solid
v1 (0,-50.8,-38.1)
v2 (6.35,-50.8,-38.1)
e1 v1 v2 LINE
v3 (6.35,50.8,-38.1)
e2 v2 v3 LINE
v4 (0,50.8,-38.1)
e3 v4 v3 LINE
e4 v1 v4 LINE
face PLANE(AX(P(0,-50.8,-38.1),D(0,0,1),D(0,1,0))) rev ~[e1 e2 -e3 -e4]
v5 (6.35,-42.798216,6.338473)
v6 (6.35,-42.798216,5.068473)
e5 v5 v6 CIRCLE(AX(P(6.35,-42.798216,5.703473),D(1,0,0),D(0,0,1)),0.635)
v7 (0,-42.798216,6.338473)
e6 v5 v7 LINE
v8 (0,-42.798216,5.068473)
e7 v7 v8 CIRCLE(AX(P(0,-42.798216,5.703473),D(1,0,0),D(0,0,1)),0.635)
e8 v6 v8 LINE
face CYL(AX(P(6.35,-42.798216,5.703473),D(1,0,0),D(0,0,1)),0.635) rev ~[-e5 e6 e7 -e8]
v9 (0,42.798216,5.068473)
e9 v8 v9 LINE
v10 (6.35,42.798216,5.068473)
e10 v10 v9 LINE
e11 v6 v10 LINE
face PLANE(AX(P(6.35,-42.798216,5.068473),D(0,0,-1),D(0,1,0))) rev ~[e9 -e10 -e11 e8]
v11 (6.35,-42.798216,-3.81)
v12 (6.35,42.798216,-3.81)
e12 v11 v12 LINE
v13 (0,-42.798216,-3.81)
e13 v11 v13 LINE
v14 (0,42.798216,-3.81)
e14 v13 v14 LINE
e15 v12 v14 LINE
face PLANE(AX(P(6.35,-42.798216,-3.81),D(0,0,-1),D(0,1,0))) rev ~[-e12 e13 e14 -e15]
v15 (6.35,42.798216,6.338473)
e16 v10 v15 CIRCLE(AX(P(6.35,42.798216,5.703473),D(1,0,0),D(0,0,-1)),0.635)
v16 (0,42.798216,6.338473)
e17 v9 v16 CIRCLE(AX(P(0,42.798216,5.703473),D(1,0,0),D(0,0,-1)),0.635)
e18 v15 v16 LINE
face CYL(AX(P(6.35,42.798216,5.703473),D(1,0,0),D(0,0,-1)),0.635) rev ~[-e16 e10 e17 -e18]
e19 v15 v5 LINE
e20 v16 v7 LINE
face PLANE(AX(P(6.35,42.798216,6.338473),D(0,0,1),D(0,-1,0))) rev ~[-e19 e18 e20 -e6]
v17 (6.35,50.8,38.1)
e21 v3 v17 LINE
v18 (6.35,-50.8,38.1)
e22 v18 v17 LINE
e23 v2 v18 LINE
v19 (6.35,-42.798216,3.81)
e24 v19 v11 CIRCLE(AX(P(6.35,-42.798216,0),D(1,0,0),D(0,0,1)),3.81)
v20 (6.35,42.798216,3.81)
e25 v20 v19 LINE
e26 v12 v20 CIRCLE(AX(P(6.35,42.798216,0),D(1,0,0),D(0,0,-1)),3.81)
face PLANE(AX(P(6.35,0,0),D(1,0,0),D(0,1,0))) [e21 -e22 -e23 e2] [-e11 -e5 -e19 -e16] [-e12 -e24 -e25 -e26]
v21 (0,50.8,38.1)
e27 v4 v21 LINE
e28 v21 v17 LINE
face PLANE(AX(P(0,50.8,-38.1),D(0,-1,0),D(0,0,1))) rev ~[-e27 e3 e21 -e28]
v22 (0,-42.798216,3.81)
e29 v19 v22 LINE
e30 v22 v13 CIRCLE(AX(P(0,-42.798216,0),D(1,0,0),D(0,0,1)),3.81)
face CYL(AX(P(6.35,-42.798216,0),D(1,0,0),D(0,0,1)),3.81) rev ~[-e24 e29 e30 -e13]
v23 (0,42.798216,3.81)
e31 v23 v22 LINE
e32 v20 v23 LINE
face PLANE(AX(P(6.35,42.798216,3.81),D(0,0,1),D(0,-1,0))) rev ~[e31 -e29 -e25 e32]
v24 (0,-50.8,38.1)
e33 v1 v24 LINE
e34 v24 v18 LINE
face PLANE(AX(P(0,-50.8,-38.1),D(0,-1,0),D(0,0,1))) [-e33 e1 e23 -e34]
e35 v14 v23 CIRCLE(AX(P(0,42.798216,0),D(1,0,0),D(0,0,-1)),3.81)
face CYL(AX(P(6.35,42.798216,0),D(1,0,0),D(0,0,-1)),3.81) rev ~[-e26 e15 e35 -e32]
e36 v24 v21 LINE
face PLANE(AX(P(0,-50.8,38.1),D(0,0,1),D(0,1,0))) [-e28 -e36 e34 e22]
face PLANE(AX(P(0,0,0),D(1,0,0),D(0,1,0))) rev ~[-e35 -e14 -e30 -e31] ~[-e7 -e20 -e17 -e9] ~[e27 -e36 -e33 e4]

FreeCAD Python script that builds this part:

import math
import FreeCAD as App
import Part
import Sketcher
Q = App.Units.Quantity


def add_polygon(sketch, points):
    """Adds a closed chain of lines whose ends are joined by coincident constraints."""
    first, n = sketch.GeometryCount, len(points)
    for a, b in zip(points, points[1:] + points[:1]):
        sketch.addGeometry(Part.LineSegment(App.Vector(*a, 0), App.Vector(*b, 0)), False)
    for i in range(n):
        sketch.addConstraint(Sketcher.Constraint("Coincident", first + i, 2, first + (i + 1) % n, 1))

doc = App.newDocument("Part")
body = doc.addObject("PartDesign::Body", "Body")

sketch1 = doc.addObject("Sketcher::SketchObject", "Sketch")
body.addObject(sketch1)
sketch1.AttachmentSupport = (doc.YZ_Plane, [""])
sketch1.MapMode = "FlatFace"
add_polygon(sketch1, [(-50.8, 38.1), (-50.8, -38.1), (50.8, -38.1), (50.8, 38.1)])
sketch1.addConstraint(Sketcher.Constraint("Vertical", 0))
sketch1.addConstraint(Sketcher.Constraint("Horizontal", 1))
sketch1.addConstraint(Sketcher.Constraint("Vertical", 2))
sketch1.addConstraint(Sketcher.Constraint("Horizontal", 3))
sketch1.addConstraint(Sketcher.Constraint("Symmetric", 0, 2, 2, 2, -1, 1))
sketch1.addConstraint(Sketcher.Constraint("DistanceX", 1, 1, 1, 2, Q("4 in")))
sketch1.addConstraint(Sketcher.Constraint("DistanceY", 0, 2, 0, 1, Q("3 in")))
pad1 = doc.addObject("PartDesign::Pad", "Pad")
body.addObject(pad1)
pad1.Profile = sketch1
pad1.Length = Q("0.25 in")

sketch2 = doc.addObject("Sketcher::SketchObject", "Sketch001")
body.addObject(sketch2)
sketch2.AttachmentSupport = (doc.YZ_Plane, [""])
sketch2.MapMode = "FlatFace"
sketch2.AttachmentOffset = App.Placement(App.Vector(0, 0, 0.25 * 25.4), App.Rotation())
sketch2.addGeometry(Part.LineSegment(App.Vector(42.798216, 3.81, 0), App.Vector(-42.798216, 3.81, 0)), False)
sketch2.addGeometry(Part.ArcOfCircle(Part.Circle(App.Vector(-42.798216, 0, 0), App.Vector(0, 0, 1), 3.81), math.radians(90), math.radians(270)), False)
sketch2.addGeometry(Part.LineSegment(App.Vector(-42.798216, -3.81, 0), App.Vector(42.798216, -3.81, 0)), False)
sketch2.addGeometry(Part.ArcOfCircle(Part.Circle(App.Vector(42.798216, 0, 0), App.Vector(0, 0, 1), 3.81), math.radians(-90), math.radians(90)), False)
sketch2.addConstraint(Sketcher.Constraint("Tangent", 0, 2, 1, 1))
sketch2.addConstraint(Sketcher.Constraint("Tangent", 1, 2, 2, 1))
sketch2.addConstraint(Sketcher.Constraint("Tangent", 2, 2, 3, 1))
sketch2.addConstraint(Sketcher.Constraint("Tangent", 3, 2, 0, 1))
sketch2.addConstraint(Sketcher.Constraint("Horizontal", 0))
sketch2.addConstraint(Sketcher.Constraint("Horizontal", 2))
sketch2.addConstraint(Sketcher.Constraint("Symmetric", 1, 3, 3, 3, -1, 1))
sketch2.addConstraint(Sketcher.Constraint("Radius", 1, Q("0.15 in")))
sketch2.addConstraint(Sketcher.Constraint("DistanceX", 0, 2, 0, 1, Q("85.596432 mm")))
pocket1 = doc.addObject("PartDesign::Pocket", "Pocket")
body.addObject(pocket1)
pocket1.Profile = sketch2
pocket1.Length = Q("1 in")

sketch3 = doc.addObject("Sketcher::SketchObject", "Sketch002")
body.addObject(sketch3)
sketch3.AttachmentSupport = (doc.YZ_Plane, [""])
sketch3.MapMode = "FlatFace"
sketch3.AttachmentOffset = App.Placement(App.Vector(0, 0, 0.25 * 25.4), App.Rotation())
sketch3.addGeometry(Part.LineSegment(App.Vector(-42.798216, 5.068473, 0), App.Vector(42.798216, 5.068473, 0)), False)
sketch3.addGeometry(Part.ArcOfCircle(Part.Circle(App.Vector(42.798216, 5.703473, 0), App.Vector(0, 0, 1), 0.635), math.radians(-90), math.radians(90)), False)
sketch3.addGeometry(Part.LineSegment(App.Vector(42.798216, 6.338473, 0), App.Vector(-42.798216, 6.338473, 0)), False)
sketch3.addGeometry(Part.ArcOfCircle(Part.Circle(App.Vector(-42.798216, 5.703473, 0), App.Vector(0, 0, 1), 0.635), math.radians(90), math.radians(270)), False)
sketch3.addConstraint(Sketcher.Constraint("Tangent", 0, 2, 1, 1))
sketch3.addConstraint(Sketcher.Constraint("Tangent", 1, 2, 2, 1))
sketch3.addConstraint(Sketcher.Constraint("Tangent", 2, 2, 3, 1))
sketch3.addConstraint(Sketcher.Constraint("Tangent", 3, 2, 0, 1))
sketch3.addConstraint(Sketcher.Constraint("Horizontal", 0))
sketch3.addConstraint(Sketcher.Constraint("Horizontal", 2))
sketch3.addConstraint(Sketcher.Constraint("Radius", 1, Q("0.025 in")))
sketch3.addConstraint(Sketcher.Constraint("DistanceX", 0, 1, 0, 2, Q("85.596432 mm")))
sketch3.addConstraint(Sketcher.Constraint("DistanceX", -1, 1, 1, 3, Q("42.798216 mm")))
sketch3.addConstraint(Sketcher.Constraint("DistanceY", -1, 1, 1, 3, Q("5.703473 mm")))
pocket2 = doc.addObject("PartDesign::Pocket", "Pocket001")
body.addObject(pocket2)
pocket2.Profile = sketch3
pocket2.Length = Q("1 in")

doc.recompute()
